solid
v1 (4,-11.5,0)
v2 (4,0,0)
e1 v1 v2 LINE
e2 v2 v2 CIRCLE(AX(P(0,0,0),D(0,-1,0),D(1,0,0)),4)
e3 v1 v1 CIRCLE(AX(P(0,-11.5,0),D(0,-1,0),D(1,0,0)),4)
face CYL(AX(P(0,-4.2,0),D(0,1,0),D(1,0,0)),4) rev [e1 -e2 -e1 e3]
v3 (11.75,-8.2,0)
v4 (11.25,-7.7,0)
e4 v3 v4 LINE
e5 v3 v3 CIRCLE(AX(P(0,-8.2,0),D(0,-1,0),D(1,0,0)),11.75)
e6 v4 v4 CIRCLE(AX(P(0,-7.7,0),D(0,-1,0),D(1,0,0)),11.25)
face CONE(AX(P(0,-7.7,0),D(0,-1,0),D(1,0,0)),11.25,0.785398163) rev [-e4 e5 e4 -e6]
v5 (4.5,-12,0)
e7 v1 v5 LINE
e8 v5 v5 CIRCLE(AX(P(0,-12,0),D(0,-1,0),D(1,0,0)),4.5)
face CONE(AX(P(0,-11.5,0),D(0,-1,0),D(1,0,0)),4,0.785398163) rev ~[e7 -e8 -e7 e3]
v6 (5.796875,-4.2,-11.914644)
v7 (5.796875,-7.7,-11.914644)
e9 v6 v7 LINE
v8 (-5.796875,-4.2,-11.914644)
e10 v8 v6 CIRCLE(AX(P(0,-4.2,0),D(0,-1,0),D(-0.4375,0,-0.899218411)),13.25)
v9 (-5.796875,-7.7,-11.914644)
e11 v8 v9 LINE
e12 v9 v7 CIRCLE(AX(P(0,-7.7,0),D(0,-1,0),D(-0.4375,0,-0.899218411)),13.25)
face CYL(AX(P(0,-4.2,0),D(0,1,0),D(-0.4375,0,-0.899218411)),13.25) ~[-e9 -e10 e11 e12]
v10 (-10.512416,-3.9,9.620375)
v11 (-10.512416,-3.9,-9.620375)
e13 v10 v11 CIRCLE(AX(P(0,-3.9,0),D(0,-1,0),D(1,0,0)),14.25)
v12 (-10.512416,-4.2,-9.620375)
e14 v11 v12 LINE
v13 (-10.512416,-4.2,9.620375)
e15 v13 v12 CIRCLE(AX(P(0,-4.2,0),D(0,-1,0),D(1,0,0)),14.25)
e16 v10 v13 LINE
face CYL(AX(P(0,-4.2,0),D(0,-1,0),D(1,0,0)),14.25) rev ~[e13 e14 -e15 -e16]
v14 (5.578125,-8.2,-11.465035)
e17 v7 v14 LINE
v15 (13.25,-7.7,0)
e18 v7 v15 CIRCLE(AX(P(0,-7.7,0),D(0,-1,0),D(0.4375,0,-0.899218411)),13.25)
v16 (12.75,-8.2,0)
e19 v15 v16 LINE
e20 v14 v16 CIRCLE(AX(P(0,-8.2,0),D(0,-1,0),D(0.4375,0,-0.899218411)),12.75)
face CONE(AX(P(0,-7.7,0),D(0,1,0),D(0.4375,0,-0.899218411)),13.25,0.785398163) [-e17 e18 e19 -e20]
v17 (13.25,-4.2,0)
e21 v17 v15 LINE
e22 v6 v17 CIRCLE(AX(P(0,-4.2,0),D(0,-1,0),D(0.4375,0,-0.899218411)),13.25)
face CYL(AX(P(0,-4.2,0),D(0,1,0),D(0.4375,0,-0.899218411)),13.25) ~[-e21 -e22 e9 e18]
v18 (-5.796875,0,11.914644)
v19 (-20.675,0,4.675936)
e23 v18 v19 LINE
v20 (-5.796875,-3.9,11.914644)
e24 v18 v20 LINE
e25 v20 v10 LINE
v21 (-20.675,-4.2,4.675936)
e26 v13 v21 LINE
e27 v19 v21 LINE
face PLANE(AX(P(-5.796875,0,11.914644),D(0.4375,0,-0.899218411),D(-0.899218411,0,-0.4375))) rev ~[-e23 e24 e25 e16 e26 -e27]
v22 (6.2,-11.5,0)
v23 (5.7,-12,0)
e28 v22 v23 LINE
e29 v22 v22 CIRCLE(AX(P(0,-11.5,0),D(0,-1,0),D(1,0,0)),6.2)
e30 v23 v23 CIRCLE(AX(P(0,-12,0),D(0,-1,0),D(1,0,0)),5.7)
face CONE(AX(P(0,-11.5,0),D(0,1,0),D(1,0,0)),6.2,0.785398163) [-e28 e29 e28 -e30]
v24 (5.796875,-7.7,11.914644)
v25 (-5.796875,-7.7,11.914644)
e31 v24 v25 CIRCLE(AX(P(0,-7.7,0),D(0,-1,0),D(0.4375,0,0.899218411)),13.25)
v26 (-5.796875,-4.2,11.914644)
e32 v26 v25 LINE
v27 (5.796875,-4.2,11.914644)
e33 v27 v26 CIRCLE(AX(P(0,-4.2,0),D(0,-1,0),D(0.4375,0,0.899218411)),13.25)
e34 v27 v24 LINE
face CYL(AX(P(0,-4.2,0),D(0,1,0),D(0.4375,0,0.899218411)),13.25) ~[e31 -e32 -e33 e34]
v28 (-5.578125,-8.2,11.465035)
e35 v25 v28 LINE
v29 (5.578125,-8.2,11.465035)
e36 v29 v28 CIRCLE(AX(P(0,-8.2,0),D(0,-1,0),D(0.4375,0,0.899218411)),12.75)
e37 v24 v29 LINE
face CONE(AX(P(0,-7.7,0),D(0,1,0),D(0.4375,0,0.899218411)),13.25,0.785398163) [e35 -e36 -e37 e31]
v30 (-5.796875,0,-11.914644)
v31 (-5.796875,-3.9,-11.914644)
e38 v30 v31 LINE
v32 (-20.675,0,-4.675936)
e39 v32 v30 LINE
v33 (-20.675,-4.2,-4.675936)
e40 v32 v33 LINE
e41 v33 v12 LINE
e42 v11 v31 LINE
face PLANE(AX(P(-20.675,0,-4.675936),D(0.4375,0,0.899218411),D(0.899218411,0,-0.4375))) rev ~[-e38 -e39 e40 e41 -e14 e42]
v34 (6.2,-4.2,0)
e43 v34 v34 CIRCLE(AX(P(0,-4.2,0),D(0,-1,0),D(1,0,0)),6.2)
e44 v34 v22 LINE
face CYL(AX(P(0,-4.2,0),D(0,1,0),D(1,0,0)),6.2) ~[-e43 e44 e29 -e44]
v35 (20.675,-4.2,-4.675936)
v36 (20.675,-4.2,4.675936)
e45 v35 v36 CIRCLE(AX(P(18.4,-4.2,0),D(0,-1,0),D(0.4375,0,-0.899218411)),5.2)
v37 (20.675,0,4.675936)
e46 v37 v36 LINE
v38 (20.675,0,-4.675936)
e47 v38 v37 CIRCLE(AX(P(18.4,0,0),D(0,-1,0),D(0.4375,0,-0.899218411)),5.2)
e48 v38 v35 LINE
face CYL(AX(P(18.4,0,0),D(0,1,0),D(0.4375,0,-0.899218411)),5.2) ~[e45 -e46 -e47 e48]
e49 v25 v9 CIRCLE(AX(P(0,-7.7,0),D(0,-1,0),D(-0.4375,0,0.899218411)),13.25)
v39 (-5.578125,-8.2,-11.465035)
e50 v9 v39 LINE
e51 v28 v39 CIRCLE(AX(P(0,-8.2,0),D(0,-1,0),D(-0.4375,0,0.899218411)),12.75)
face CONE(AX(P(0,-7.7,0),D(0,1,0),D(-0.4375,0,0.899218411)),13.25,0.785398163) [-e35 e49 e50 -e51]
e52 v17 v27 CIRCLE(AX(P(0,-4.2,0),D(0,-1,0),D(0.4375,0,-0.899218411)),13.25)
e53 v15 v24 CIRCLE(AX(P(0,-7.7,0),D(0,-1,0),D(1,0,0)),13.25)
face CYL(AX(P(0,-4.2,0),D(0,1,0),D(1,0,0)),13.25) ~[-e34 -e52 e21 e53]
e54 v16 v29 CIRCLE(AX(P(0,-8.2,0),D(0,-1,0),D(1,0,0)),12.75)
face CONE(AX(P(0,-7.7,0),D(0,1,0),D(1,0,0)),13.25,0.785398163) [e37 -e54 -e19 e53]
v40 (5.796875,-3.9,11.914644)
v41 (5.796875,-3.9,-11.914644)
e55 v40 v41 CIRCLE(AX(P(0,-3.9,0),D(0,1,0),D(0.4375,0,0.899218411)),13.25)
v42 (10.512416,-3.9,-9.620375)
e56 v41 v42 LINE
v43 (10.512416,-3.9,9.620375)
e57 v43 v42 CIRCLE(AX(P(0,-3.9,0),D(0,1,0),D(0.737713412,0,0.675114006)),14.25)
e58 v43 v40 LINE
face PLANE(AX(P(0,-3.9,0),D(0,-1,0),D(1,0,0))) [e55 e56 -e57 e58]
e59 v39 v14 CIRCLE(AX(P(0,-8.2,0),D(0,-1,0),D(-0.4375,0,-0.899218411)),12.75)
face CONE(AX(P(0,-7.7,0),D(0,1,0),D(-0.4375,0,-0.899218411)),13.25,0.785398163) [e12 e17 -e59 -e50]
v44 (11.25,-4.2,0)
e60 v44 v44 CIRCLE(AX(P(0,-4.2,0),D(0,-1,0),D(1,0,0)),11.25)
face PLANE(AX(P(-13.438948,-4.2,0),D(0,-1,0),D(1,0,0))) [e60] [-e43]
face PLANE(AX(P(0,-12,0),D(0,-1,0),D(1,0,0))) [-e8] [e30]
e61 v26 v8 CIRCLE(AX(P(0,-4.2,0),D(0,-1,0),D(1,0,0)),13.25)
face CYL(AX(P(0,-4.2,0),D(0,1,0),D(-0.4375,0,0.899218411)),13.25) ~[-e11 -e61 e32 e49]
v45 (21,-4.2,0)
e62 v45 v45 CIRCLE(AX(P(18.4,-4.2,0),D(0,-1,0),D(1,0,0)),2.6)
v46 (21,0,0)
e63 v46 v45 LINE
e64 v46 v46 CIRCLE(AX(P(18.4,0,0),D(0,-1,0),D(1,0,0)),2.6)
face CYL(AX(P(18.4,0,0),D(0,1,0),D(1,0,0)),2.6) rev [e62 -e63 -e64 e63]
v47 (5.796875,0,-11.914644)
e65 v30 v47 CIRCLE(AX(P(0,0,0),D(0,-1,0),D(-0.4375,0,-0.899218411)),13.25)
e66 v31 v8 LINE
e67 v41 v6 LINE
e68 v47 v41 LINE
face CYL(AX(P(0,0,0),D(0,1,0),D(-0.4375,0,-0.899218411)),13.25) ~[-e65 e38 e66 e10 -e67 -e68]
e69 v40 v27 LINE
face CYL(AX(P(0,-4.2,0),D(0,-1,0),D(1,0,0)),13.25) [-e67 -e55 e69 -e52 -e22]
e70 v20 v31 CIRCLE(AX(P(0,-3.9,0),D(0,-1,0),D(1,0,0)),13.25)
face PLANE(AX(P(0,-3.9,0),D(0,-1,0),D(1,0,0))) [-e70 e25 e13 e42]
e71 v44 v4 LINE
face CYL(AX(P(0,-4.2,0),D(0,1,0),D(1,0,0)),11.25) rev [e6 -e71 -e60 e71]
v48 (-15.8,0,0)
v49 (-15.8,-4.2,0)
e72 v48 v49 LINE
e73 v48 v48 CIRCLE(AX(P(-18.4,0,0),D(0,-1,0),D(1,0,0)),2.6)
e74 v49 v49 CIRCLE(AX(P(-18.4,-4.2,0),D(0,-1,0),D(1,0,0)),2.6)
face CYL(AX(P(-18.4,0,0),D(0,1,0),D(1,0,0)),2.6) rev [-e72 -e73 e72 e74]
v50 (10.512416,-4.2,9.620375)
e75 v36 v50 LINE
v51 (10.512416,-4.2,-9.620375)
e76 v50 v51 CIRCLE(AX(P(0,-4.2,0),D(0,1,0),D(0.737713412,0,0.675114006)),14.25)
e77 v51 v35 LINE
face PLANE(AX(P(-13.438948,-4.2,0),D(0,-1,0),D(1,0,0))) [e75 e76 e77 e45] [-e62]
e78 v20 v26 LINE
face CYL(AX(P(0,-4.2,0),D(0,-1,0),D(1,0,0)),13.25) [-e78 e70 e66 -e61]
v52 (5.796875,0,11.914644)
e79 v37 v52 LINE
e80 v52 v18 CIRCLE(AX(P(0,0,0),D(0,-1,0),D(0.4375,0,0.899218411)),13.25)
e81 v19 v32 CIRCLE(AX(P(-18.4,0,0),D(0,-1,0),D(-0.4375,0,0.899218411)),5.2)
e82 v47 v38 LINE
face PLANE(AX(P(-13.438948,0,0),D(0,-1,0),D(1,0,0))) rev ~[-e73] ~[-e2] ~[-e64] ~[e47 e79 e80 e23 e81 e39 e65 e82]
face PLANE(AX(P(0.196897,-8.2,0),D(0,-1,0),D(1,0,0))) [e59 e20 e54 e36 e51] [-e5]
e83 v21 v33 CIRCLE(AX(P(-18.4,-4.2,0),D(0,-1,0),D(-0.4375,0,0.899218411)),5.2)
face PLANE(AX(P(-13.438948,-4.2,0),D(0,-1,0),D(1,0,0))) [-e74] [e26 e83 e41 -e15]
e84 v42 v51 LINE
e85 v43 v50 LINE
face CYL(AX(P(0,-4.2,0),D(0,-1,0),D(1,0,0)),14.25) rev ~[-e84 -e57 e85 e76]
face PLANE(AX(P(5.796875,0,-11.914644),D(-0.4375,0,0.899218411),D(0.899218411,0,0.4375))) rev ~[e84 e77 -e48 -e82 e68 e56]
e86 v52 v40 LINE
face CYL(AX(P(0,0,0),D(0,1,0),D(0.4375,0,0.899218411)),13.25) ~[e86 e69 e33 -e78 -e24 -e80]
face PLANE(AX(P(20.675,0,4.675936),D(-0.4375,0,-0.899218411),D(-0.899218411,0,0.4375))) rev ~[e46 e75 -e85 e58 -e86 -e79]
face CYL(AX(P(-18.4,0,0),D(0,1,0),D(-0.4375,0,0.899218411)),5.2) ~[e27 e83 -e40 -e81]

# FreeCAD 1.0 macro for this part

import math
import FreeCAD as App
import Part
import Sketcher

V = App.Vector


def edges_at(feature, points):
    """Names of the edges that pass closest to the given points."""
    edges = feature.Shape.Edges
    near = lambda p: min(range(len(edges)), key=lambda i: edges[i].distToShape(Part.Vertex(*p))[0])
    return sorted({f"Edge{near(p) + 1}" for p in points})

doc = App.newDocument("Part")
params = doc.addObject("Spreadsheet::Sheet", "Params")
for row, (alias, value) in enumerate([
    ("sketch1_diameter", "8 mm"),
    ("sketch1_diameter2", "5.2 mm"),
    ("sketch1_radius", "5.2 mm"),
    ("sketch1_radius2", "13.25 mm"),
    ("pad1_length", "4.2 mm"),
    ("sketch2_diameter", "28.5 mm"),
    ("sketch2_diameter2", "26.5 mm"),
    ("pocket1_length", "0.3 mm"),
    ("sketch3_diameter", "8 mm"),
    ("sketch3_diameter2", "12.4 mm"),
    ("pad2_length", "7.8 mm"),
    ("sketch4_diameter", "22.5 mm"),
    ("sketch4_radius", "13.25 mm"),
    ("pad3_length", "4 mm"),
    ("chamfer_size", "0.5 mm"),
], start=1):
    params.set(f"A{row}", alias)
    params.set(f"B{row}", "=" + value)
    params.setAlias(f"B{row}", alias)

body = doc.addObject("PartDesign::Body", "Body")

# Sketch on XZ plane
sketch1 = body.newObject("Sketcher::SketchObject", "Sketch")
sketch1.AttachmentSupport = (doc.getObject("XZ_Plane"), [""])
sketch1.MapMode = "FlatFace"
sketch1.addGeometry([
    Part.LineSegment(V(-20.7, -4.7, 0), V(-5.8, -11.9, 0)),  # 0
    Part.ArcOfCircle(Part.Circle(V(0, 0, 0), V(0, 0, 1), 13.2), math.radians(-116), math.radians(-64)),  # 1
    Part.LineSegment(V(5.8, -11.9, 0), V(20.7, -4.7, 0)),  # 2
    Part.ArcOfCircle(Part.Circle(V(18.4, 0, 0), V(0, 0, 1), 5.2), math.radians(-64), math.radians(64)),  # 3
    Part.LineSegment(V(20.7, 4.7, 0), V(5.8, 11.9, 0)),  # 4
    Part.ArcOfCircle(Part.Circle(V(0, 0, 0), V(0, 0, 1), 13.2), math.radians(64), math.radians(116)),  # 5
    Part.LineSegment(V(-5.8, 11.9, 0), V(-20.7, 4.7, 0)),  # 6
    Part.ArcOfCircle(Part.Circle(V(-18.4, 0, 0), V(0, 0, 1), 5.2), math.radians(116), math.radians(244)),  # 7
    Part.Circle(V(-18.4, 0, 0), V(0, 0, 1), 2.6),  # 8
    Part.Circle(V(18.4, 0, 0), V(0, 0, 1), 2.6),  # 9
    Part.Circle(V(0, 0, 0), V(0, 0, 1), 4),  # 10
], False)
sketch1.addConstraint([
    Sketcher.Constraint("Tangent", 0, 2, 1, 1),
    Sketcher.Constraint("Tangent", 1, 2, 2, 1),
    Sketcher.Constraint("Tangent", 2, 2, 3, 1),
    Sketcher.Constraint("Tangent", 3, 2, 4, 1),
    Sketcher.Constraint("Tangent", 4, 2, 5, 1),
    Sketcher.Constraint("Tangent", 5, 2, 6, 1),
    Sketcher.Constraint("Tangent", 6, 2, 7, 1),
    Sketcher.Constraint("Tangent", 7, 2, 0, 1),
    Sketcher.Constraint("Coincident", 1, 3, -1, 1),
    Sketcher.Constraint("Coincident", 5, 3, -1, 1),
    Sketcher.Constraint("Coincident", 10, 3, -1, 1),
    Sketcher.Constraint("Coincident", 8, 3, 7, 3),
    Sketcher.Constraint("Coincident", 9, 3, 3, 3),
    Sketcher.Constraint("Equal", 1, 5),
    Sketcher.Constraint("Equal", 3, 7),
    Sketcher.Constraint("Equal", 8, 9),
    Sketcher.Constraint("Symmetric", 3, 3, 7, 3, -1, 1),
    Sketcher.Constraint("PointOnObject", 3, 3, -1),
    Sketcher.Constraint("Diameter", 10, 8.0),
    Sketcher.Constraint("Diameter", 8, 5.2),
    Sketcher.Constraint("Radius", 3, 5.2),
    Sketcher.Constraint("Radius", 1, 13.25),
    Sketcher.Constraint("DistanceX", -1, 1, 3, 3, 18.4),
])
sketch1.setExpression("Constraints[18]", "Params.sketch1_diameter")
sketch1.setExpression("Constraints[19]", "Params.sketch1_diameter2")
sketch1.setExpression("Constraints[20]", "Params.sketch1_radius")
sketch1.setExpression("Constraints[21]", "Params.sketch1_radius2")
pad1 = body.newObject("PartDesign::Pad", "Pad")
pad1.Profile = sketch1
pad1.setExpression("Length", "Params.pad1_length")

# Sketch on XZ plane
sketch2 = body.newObject("Sketcher::SketchObject", "Sketch001")
sketch2.AttachmentSupport = (doc.getObject("XZ_Plane"), [""])
sketch2.MapMode = "FlatFace"
sketch2.AttachmentOffset = App.Placement(V(0, 0, 4.2), App.Rotation())
sketch2.addGeometry([
    Part.Circle(V(0, 0, 0), V(0, 0, 1), 14),
    Part.Circle(V(0, 0, 0), V(0, 0, 1), 13),
], False)
sketch2.addConstraint([
    Sketcher.Constraint("Coincident", 0, 3, -1, 1),
    Sketcher.Constraint("Coincident", 1, 3, -1, 1),
    Sketcher.Constraint("Diameter", 0, 28.5),
    Sketcher.Constraint("Diameter", 1, 26.5),
])
sketch2.setExpression("Constraints[2]", "Params.sketch2_diameter")
sketch2.setExpression("Constraints[3]", "Params.sketch2_diameter2")
pocket1 = body.newObject("PartDesign::Pocket", "Pocket")
pocket1.Profile = sketch2
pocket1.setExpression("Length", "Params.pocket1_length")

# Sketch on XZ plane
sketch3 = body.newObject("Sketcher::SketchObject", "Sketch002")
sketch3.AttachmentSupport = (doc.getObject("XZ_Plane"), [""])
sketch3.MapMode = "FlatFace"
sketch3.AttachmentOffset = App.Placement(V(0, 0, 4.2), App.Rotation())
sketch3.addGeometry([
    Part.Circle(V(0, 0, 0), V(0, 0, 1), 6.2),
    Part.Circle(V(0, 0, 0), V(0, 0, 1), 4),
], False)
sketch3.addConstraint([
    Sketcher.Constraint("Coincident", 0, 3, -1, 1),
    Sketcher.Constraint("Coincident", 1, 3, -1, 1),
    Sketcher.Constraint("Diameter", 1, 8.0),
    Sketcher.Constraint("Diameter", 0, 12.4),
])
sketch3.setExpression("Constraints[2]", "Params.sketch3_diameter")
sketch3.setExpression("Constraints[3]", "Params.sketch3_diameter2")
pad2 = body.newObject("PartDesign::Pad", "Pad001")
pad2.Profile = sketch3
pad2.setExpression("Length", "Params.pad2_length")

# Sketch on XZ plane
sketch4 = body.newObject("Sketcher::SketchObject", "Sketch003")
sketch4.AttachmentSupport = (doc.getObject("XZ_Plane"), [""])
sketch4.MapMode = "FlatFace"
sketch4.AttachmentOffset = App.Placement(V(0, 0, 4.2), App.Rotation())
sketch4.addGeometry([
    Part.ArcOfCircle(Part.Circle(V(0, 0, 0), V(0, 0, 1), 13), math.radians(-64), math.radians(0)),  # 0
    Part.ArcOfCircle(Part.Circle(V(0, 0, 0), V(0, 0, 1), 13), math.radians(0), math.radians(64)),  # 1
    Part.ArcOfCircle(Part.Circle(V(0, 0, 0), V(0, 0, 1), 13), math.radians(64), math.radians(116)),  # 2
    Part.ArcOfCircle(Part.Circle(V(0, 0, 0), V(0, 0, 1), 13), math.radians(116), math.radians(244)),  # 3
    Part.ArcOfCircle(Part.Circle(V(0, 0, 0), V(0, 0, 1), 13), math.radians(-116), math.radians(-64)),  # 4
    Part.Circle(V(0, 0, 0), V(0, 0, 1), 11),  # 5
], False)
sketch4.addConstraint([
    Sketcher.Constraint("Tangent", 0, 2, 1, 1),
    Sketcher.Constraint("Tangent", 1, 2, 2, 1),
    Sketcher.Constraint("Tangent", 2, 2, 3, 1),
    Sketcher.Constraint("Tangent", 3, 2, 4, 1),
    Sketcher.Constraint("Tangent", 4, 2, 0, 1),
    Sketcher.Constraint("Coincident", 0, 3, -1, 1),
    Sketcher.Constraint("Coincident", 2, 3, -1, 1),
    Sketcher.Constraint("Coincident", 5, 3, -1, 1),
    Sketcher.Constraint("PointOnObject", 0, 2, -1),
    Sketcher.Constraint("Horizontal", 1, 2, 2, 2),
    Sketcher.Constraint("Horizontal", 3, 2, 4, 2),
    Sketcher.Constraint("Vertical", 2, 2, 3, 2),
    Sketcher.Constraint("Diameter", 5, 22.5),
    Sketcher.Constraint("Radius", 0, 13.25),
    Sketcher.Constraint("DistanceX", 2, 2, 1, 2, 11.59375),
])
sketch4.setExpression("Constraints[12]", "Params.sketch4_diameter")
sketch4.setExpression("Constraints[13]", "Params.sketch4_radius")
pad3 = body.newObject("PartDesign::Pad", "Pad002")
pad3.Profile = sketch4
pad3.setExpression("Length", "Params.pad3_length")
doc.recompute()

chamfer = body.newObject("PartDesign::Chamfer", "Chamfer")
chamfer.Base = (pad3, edges_at(pad3, [
    (-4, -12, 0),
    (-6.2, -12, 0),
    (-11.25, -8.2, 0),
    (0, -8.2, -13.25),
]))
chamfer.setExpression("Size", "Params.chamfer_size")

doc.recompute()
